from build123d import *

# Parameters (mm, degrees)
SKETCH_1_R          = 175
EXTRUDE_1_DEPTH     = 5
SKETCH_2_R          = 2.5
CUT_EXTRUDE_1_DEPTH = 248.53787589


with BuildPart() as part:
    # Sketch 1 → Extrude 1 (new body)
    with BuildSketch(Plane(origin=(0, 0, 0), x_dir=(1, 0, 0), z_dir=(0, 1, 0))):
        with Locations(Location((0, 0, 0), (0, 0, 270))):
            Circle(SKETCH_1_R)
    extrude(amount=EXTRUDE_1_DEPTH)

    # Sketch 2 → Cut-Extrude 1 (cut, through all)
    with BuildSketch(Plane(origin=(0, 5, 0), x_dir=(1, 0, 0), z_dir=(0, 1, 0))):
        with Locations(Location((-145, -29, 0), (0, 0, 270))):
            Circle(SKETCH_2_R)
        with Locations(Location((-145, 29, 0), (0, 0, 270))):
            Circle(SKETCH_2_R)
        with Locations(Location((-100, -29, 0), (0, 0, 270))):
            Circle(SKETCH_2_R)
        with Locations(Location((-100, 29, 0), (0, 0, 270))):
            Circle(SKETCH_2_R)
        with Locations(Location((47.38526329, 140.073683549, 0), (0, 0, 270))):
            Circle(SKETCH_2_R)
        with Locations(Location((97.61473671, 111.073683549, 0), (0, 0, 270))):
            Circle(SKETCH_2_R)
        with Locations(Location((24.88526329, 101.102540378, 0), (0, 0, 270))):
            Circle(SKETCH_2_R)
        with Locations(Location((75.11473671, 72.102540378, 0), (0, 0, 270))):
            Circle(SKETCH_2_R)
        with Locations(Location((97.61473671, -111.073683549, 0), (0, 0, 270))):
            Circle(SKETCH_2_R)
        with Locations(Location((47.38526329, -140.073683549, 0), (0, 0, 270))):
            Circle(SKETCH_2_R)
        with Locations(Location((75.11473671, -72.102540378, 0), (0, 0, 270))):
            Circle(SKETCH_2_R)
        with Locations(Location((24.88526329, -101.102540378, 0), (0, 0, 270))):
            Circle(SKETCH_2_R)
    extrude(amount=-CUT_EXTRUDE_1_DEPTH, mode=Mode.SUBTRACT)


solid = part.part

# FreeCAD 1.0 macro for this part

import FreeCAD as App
import Part
import Sketcher

V = App.Vector

doc = App.newDocument("Part")
params = doc.addObject("Spreadsheet::Sheet", "Params")
for row, (alias, value) in enumerate([
    ("sketch1_diameter", "350 mm"),
    ("pad1_length", "5 mm"),
    ("sketch2_diameter", "5 mm"),
], start=1):
    params.set(f"A{row}", alias)
    params.set(f"B{row}", "=" + value)
    params.setAlias(f"B{row}", alias)

body = doc.addObject("PartDesign::Body", "Body")

# Sketch on XZ plane
sketch1 = body.newObject("Sketcher::SketchObject", "Sketch")
sketch1.AttachmentSupport = (doc.getObject("XZ_Plane"), [""])
sketch1.MapMode = "FlatFace"
sketch1.addGeometry(Part.Circle(V(0, 0, 0), V(0, 0, 1), 175), False)
sketch1.addConstraint(Sketcher.Constraint("Coincident", 0, 3, -1, 1))
sketch1.addConstraint(Sketcher.Constraint("Diameter", 0, 350.0))
sketch1.setExpression("Constraints[1]", "Params.sketch1_diameter")
pad1 = body.newObject("PartDesign::Pad", "Pad")
pad1.Profile = sketch1
pad1.setExpression("Length", "Params.pad1_length")
pad1.Reversed = True

# Sketch on XZ plane
sketch2 = body.newObject("Sketcher::SketchObject", "Sketch001")
sketch2.AttachmentSupport = (doc.getObject("XZ_Plane"), [""])
sketch2.MapMode = "FlatFace"
sketch2.AttachmentOffset = App.Placement(V(0, 0, -5), App.Rotation())
sketch2.addGeometry(Part.Circle(V(-145, 29, 0), V(0, 0, 1), 2.5), False)
sketch2.addGeometry(Part.Circle(V(-145, -29, 0), V(0, 0, 1), 2.5), False)
sketch2.addGeometry(Part.Circle(V(-100, 29, 0), V(0, 0, 1), 2.5), False)
sketch2.addGeometry(Part.Circle(V(-100, -29, 0), V(0, 0, 1), 2.5), False)
sketch2.addGeometry(Part.Circle(V(47.4, -140.1, 0), V(0, 0, 1), 2.5), False)
sketch2.addGeometry(Part.Circle(V(97.6, -111.1, 0), V(0, 0, 1), 2.5), False)
sketch2.addGeometry(Part.Circle(V(24.9, -101.1, 0), V(0, 0, 1), 2.5), False)
sketch2.addGeometry(Part.Circle(V(75.1, -72.1, 0), V(0, 0, 1), 2.5), False)
sketch2.addGeometry(Part.Circle(V(97.6, 111.1, 0), V(0, 0, 1), 2.5), False)
sketch2.addGeometry(Part.Circle(V(47.4, 140.1, 0), V(0, 0, 1), 2.5), False)
sketch2.addGeometry(Part.Circle(V(75.1, 72.1, 0), V(0, 0, 1), 2.5), False)
sketch2.addGeometry(Part.Circle(V(24.9, 101.1, 0), V(0, 0, 1), 2.5), False)
sketch2.addConstraint(Sketcher.Constraint("Equal", 0, 1))
sketch2.addConstraint(Sketcher.Constraint("Equal", 1, 2))
sketch2.addConstraint(Sketcher.Constraint("Equal", 2, 3))
sketch2.addConstraint(Sketcher.Constraint("Equal", 3, 4))
sketch2.addConstraint(Sketcher.Constraint("Equal", 4, 5))
sketch2.addConstraint(Sketcher.Constraint("Equal", 5, 6))
sketch2.addConstraint(Sketcher.Constraint("Equal", 6, 7))
sketch2.addConstraint(Sketcher.Constraint("Equal", 7, 8))
sketch2.addConstraint(Sketcher.Constraint("Equal", 8, 9))
sketch2.addConstraint(Sketcher.Constraint("Equal", 9, 10))
sketch2.addConstraint(Sketcher.Constraint("Equal", 10, 11))
sketch2.addConstraint(Sketcher.Constraint("Symmetric", 0, 3, 1, 3, -1))
sketch2.addConstraint(Sketcher.Constraint("Symmetric", 2, 3, 3, 3, -1))
sketch2.addConstraint(Sketcher.Constraint("Symmetric", 5, 3, 8, 3, -1))
sketch2.addConstraint(Sketcher.Constraint("Symmetric", 4, 3, 9, 3, -1))
sketch2.addConstraint(Sketcher.Constraint("Symmetric", 7, 3, 10, 3, -1))
sketch2.addConstraint(Sketcher.Constraint("Symmetric", 6, 3, 11, 3, -1))
sketch2.addConstraint(Sketcher.Constraint("Horizontal", 0, 3, 2, 3))
sketch2.addConstraint(Sketcher.Constraint("Diameter", 0, 5.0))
sketch2.addConstraint(Sketcher.Constraint("DistanceX", 0, 3, -1, 1, 145.0))
sketch2.addConstraint(Sketcher.Constraint("DistanceY", -1, 1, 0, 3, 29.0))
sketch2.addConstraint(Sketcher.Constraint("DistanceX", 2, 3, -1, 1, 100.0))
sketch2.addConstraint(Sketcher.Constraint("DistanceY", 4, 3, 5, 3, 29.0))
sketch2.addConstraint(Sketcher.Constraint("DistanceY", 6, 3, 7, 3, 29.0))
sketch2.addConstraint(Sketcher.Constraint("DistanceX", 6, 3, 4, 3, 22.5))
sketch2.addConstraint(Sketcher.Constraint("DistanceX", 7, 3, 5, 3, 22.5))
sketch2.addConstraint(Sketcher.Constraint("DistanceY", 6, 3, -1, 1, 101.10254))
sketch2.addConstraint(Sketcher.Constraint("DistanceX", -1, 1, 4, 3, 47.385263))
sketch2.addConstraint(Sketcher.Constraint("DistanceY", 4, 3, -1, 1, 140.073684))
sketch2.addConstraint(Sketcher.Constraint("DistanceX", -1, 1, 5, 3, 97.614737))
sketch2.setExpression("Constraints[18]", "Params.sketch2_diameter")
pocket1 = body.newObject("PartDesign::Pocket", "Pocket")
pocket1.Profile = sketch2
pocket1.Type = "ThroughAll"
pocket1.Reversed = True

doc.recompute()
